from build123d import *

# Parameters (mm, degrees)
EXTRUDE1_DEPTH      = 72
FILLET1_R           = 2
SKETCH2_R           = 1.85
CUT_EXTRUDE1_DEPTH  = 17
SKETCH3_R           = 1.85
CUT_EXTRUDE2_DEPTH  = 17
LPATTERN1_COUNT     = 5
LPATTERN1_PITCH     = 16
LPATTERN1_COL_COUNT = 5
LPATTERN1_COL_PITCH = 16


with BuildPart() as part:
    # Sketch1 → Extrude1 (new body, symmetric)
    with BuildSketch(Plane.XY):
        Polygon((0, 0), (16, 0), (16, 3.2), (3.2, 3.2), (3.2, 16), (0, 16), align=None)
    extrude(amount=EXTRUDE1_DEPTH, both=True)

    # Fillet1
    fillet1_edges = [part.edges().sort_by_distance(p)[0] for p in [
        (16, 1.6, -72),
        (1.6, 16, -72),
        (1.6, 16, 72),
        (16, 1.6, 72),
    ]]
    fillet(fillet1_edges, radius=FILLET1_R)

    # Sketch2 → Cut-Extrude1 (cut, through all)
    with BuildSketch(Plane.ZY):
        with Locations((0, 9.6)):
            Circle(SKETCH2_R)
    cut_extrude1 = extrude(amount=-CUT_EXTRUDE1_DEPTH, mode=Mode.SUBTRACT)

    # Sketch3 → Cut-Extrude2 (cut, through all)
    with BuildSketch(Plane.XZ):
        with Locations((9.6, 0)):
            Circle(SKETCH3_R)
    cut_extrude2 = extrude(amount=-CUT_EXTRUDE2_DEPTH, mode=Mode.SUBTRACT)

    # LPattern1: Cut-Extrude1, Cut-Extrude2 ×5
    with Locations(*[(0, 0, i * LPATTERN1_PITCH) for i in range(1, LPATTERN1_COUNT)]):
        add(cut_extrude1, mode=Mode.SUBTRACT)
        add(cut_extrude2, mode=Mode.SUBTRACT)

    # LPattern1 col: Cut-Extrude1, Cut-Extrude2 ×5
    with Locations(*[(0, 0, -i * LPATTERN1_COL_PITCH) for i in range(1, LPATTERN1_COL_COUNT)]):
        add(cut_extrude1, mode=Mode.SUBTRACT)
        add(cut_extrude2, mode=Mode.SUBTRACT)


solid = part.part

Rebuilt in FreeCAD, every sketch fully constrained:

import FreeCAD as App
import Part
import Sketcher
from FreeCAD import Vector


def edges_at(feature, points):
    """Names of the edges that pass closest to the given points."""
    edges = feature.Shape.Edges
    near = lambda p: min(range(len(edges)), key=lambda i: edges[i].distToShape(Part.Vertex(*p))[0])
    return sorted({f"Edge{near(p) + 1}" for p in points})


def add_polygon(sketch, points):
    """Adds a closed chain of lines whose ends are joined by coincident constraints."""
    first, n = sketch.GeometryCount, len(points)
    for a, b in zip(points, points[1:] + points[:1]):
        sketch.addGeometry(Part.LineSegment(App.Vector(*a, 0), App.Vector(*b, 0)), False)
    for i in range(n):
        sketch.addConstraint(Sketcher.Constraint("Coincident", first + i, 2, first + (i + 1) % n, 1))

doc = App.newDocument("Part")
body = doc.addObject("PartDesign::Body", "Body")

# Sketch on XY plane
sketch1 = body.newObject("Sketcher::SketchObject", "Sketch")
sketch1.AttachmentSupport = (doc.getObject("XY_Plane"), [""])
sketch1.MapMode = "FlatFace"
add_polygon(sketch1, [(0, 0), (16, 0), (16, 3.2), (3.2, 3.2), (3.2, 16), (0, 16)])  # lines 0-5
sketch1.addConstraint([
    Sketcher.Constraint("Horizontal", 0),
    Sketcher.Constraint("Vertical", 1),
    Sketcher.Constraint("Horizontal", 2),
    Sketcher.Constraint("Vertical", 3),
    Sketcher.Constraint("Horizontal", 4),
    Sketcher.Constraint("Vertical", 5),
    Sketcher.Constraint("Coincident", 5, 2, -1, 1),
    Sketcher.Constraint("Equal", 4, 1),
    Sketcher.Constraint("Equal", 2, 3),
    Sketcher.Constraint("DistanceX", 0, 1, 0, 2, 16.0),
    Sketcher.Constraint("DistanceX", 2, 2, 2, 1, 12.8),
])
pad1 = body.newObject("PartDesign::Pad", "Pad")
pad1.Profile = sketch1
pad1.Length = 144
pad1.Midplane = True
doc.recompute()

fillet = body.newObject("PartDesign::Fillet", "Fillet")
fillet.Base = (pad1, edges_at(pad1, [
    (16, 1.6, -72),
    (1.6, 16, -72),
    (1.6, 16, 72),
    (16, 1.6, 72),
]))
fillet.Radius = 2

# Sketch on YZ plane
sketch2 = body.newObject("Sketcher::SketchObject", "Sketch001")
sketch2.AttachmentSupport = (doc.getObject("YZ_Plane"), [""])
sketch2.MapMode = "FlatFace"
sketch2.addGeometry(Part.Circle(Vector(9.6, 0, 0), Vector(0, 0, 1), 1.85), False)
sketch2.addConstraint([
    Sketcher.Constraint("PointOnObject", 0, 3, -1),
    Sketcher.Constraint("Diameter", 0, 3.7),
    Sketcher.Constraint("DistanceX", -1, 1, 0, 3, 9.6),
])
pocket1 = body.newObject("PartDesign::Pocket", "Pocket")
pocket1.Profile = sketch2
pocket1.Type = "ThroughAll"
pocket1.Reversed = True

# Sketch on XZ plane
sketch3 = body.newObject("Sketcher::SketchObject", "Sketch002")
sketch3.AttachmentSupport = (doc.getObject("XZ_Plane"), [""])
sketch3.MapMode = "FlatFace"
sketch3.addGeometry(Part.Circle(Vector(9.6, 0, 0), Vector(0, 0, 1), 1.85), False)
sketch3.addConstraint([
    Sketcher.Constraint("PointOnObject", 0, 3, -1),
    Sketcher.Constraint("Diameter", 0, 3.7),
    Sketcher.Constraint("DistanceX", -1, 1, 0, 3, 9.6),
])
pocket2 = body.newObject("PartDesign::Pocket", "Pocket001")
pocket2.Profile = sketch3
pocket2.Type = "ThroughAll"
doc.recompute()

linearpattern = body.newObject("PartDesign::LinearPattern", "LinearPattern")
linearpattern.Originals = [pocket1, pocket2]
linearpattern.Direction = (doc.getObject("Z_Axis"), [""])
linearpattern.Mode = "offset"
linearpattern.Offset = 16
linearpattern.Occurrences = 5
body.Tip = linearpattern
doc.recompute()

linearpattern2 = body.newObject("PartDesign::LinearPattern", "LinearPattern001")
linearpattern2.Originals = [pocket1, pocket2]
linearpattern2.Direction = (doc.getObject("Z_Axis"), [""])
linearpattern2.Mode = "offset"
linearpattern2.Offset = 16
linearpattern2.Occurrences = 5
linearpattern2.Reversed = True
body.Tip = linearpattern2

doc.recompute()
